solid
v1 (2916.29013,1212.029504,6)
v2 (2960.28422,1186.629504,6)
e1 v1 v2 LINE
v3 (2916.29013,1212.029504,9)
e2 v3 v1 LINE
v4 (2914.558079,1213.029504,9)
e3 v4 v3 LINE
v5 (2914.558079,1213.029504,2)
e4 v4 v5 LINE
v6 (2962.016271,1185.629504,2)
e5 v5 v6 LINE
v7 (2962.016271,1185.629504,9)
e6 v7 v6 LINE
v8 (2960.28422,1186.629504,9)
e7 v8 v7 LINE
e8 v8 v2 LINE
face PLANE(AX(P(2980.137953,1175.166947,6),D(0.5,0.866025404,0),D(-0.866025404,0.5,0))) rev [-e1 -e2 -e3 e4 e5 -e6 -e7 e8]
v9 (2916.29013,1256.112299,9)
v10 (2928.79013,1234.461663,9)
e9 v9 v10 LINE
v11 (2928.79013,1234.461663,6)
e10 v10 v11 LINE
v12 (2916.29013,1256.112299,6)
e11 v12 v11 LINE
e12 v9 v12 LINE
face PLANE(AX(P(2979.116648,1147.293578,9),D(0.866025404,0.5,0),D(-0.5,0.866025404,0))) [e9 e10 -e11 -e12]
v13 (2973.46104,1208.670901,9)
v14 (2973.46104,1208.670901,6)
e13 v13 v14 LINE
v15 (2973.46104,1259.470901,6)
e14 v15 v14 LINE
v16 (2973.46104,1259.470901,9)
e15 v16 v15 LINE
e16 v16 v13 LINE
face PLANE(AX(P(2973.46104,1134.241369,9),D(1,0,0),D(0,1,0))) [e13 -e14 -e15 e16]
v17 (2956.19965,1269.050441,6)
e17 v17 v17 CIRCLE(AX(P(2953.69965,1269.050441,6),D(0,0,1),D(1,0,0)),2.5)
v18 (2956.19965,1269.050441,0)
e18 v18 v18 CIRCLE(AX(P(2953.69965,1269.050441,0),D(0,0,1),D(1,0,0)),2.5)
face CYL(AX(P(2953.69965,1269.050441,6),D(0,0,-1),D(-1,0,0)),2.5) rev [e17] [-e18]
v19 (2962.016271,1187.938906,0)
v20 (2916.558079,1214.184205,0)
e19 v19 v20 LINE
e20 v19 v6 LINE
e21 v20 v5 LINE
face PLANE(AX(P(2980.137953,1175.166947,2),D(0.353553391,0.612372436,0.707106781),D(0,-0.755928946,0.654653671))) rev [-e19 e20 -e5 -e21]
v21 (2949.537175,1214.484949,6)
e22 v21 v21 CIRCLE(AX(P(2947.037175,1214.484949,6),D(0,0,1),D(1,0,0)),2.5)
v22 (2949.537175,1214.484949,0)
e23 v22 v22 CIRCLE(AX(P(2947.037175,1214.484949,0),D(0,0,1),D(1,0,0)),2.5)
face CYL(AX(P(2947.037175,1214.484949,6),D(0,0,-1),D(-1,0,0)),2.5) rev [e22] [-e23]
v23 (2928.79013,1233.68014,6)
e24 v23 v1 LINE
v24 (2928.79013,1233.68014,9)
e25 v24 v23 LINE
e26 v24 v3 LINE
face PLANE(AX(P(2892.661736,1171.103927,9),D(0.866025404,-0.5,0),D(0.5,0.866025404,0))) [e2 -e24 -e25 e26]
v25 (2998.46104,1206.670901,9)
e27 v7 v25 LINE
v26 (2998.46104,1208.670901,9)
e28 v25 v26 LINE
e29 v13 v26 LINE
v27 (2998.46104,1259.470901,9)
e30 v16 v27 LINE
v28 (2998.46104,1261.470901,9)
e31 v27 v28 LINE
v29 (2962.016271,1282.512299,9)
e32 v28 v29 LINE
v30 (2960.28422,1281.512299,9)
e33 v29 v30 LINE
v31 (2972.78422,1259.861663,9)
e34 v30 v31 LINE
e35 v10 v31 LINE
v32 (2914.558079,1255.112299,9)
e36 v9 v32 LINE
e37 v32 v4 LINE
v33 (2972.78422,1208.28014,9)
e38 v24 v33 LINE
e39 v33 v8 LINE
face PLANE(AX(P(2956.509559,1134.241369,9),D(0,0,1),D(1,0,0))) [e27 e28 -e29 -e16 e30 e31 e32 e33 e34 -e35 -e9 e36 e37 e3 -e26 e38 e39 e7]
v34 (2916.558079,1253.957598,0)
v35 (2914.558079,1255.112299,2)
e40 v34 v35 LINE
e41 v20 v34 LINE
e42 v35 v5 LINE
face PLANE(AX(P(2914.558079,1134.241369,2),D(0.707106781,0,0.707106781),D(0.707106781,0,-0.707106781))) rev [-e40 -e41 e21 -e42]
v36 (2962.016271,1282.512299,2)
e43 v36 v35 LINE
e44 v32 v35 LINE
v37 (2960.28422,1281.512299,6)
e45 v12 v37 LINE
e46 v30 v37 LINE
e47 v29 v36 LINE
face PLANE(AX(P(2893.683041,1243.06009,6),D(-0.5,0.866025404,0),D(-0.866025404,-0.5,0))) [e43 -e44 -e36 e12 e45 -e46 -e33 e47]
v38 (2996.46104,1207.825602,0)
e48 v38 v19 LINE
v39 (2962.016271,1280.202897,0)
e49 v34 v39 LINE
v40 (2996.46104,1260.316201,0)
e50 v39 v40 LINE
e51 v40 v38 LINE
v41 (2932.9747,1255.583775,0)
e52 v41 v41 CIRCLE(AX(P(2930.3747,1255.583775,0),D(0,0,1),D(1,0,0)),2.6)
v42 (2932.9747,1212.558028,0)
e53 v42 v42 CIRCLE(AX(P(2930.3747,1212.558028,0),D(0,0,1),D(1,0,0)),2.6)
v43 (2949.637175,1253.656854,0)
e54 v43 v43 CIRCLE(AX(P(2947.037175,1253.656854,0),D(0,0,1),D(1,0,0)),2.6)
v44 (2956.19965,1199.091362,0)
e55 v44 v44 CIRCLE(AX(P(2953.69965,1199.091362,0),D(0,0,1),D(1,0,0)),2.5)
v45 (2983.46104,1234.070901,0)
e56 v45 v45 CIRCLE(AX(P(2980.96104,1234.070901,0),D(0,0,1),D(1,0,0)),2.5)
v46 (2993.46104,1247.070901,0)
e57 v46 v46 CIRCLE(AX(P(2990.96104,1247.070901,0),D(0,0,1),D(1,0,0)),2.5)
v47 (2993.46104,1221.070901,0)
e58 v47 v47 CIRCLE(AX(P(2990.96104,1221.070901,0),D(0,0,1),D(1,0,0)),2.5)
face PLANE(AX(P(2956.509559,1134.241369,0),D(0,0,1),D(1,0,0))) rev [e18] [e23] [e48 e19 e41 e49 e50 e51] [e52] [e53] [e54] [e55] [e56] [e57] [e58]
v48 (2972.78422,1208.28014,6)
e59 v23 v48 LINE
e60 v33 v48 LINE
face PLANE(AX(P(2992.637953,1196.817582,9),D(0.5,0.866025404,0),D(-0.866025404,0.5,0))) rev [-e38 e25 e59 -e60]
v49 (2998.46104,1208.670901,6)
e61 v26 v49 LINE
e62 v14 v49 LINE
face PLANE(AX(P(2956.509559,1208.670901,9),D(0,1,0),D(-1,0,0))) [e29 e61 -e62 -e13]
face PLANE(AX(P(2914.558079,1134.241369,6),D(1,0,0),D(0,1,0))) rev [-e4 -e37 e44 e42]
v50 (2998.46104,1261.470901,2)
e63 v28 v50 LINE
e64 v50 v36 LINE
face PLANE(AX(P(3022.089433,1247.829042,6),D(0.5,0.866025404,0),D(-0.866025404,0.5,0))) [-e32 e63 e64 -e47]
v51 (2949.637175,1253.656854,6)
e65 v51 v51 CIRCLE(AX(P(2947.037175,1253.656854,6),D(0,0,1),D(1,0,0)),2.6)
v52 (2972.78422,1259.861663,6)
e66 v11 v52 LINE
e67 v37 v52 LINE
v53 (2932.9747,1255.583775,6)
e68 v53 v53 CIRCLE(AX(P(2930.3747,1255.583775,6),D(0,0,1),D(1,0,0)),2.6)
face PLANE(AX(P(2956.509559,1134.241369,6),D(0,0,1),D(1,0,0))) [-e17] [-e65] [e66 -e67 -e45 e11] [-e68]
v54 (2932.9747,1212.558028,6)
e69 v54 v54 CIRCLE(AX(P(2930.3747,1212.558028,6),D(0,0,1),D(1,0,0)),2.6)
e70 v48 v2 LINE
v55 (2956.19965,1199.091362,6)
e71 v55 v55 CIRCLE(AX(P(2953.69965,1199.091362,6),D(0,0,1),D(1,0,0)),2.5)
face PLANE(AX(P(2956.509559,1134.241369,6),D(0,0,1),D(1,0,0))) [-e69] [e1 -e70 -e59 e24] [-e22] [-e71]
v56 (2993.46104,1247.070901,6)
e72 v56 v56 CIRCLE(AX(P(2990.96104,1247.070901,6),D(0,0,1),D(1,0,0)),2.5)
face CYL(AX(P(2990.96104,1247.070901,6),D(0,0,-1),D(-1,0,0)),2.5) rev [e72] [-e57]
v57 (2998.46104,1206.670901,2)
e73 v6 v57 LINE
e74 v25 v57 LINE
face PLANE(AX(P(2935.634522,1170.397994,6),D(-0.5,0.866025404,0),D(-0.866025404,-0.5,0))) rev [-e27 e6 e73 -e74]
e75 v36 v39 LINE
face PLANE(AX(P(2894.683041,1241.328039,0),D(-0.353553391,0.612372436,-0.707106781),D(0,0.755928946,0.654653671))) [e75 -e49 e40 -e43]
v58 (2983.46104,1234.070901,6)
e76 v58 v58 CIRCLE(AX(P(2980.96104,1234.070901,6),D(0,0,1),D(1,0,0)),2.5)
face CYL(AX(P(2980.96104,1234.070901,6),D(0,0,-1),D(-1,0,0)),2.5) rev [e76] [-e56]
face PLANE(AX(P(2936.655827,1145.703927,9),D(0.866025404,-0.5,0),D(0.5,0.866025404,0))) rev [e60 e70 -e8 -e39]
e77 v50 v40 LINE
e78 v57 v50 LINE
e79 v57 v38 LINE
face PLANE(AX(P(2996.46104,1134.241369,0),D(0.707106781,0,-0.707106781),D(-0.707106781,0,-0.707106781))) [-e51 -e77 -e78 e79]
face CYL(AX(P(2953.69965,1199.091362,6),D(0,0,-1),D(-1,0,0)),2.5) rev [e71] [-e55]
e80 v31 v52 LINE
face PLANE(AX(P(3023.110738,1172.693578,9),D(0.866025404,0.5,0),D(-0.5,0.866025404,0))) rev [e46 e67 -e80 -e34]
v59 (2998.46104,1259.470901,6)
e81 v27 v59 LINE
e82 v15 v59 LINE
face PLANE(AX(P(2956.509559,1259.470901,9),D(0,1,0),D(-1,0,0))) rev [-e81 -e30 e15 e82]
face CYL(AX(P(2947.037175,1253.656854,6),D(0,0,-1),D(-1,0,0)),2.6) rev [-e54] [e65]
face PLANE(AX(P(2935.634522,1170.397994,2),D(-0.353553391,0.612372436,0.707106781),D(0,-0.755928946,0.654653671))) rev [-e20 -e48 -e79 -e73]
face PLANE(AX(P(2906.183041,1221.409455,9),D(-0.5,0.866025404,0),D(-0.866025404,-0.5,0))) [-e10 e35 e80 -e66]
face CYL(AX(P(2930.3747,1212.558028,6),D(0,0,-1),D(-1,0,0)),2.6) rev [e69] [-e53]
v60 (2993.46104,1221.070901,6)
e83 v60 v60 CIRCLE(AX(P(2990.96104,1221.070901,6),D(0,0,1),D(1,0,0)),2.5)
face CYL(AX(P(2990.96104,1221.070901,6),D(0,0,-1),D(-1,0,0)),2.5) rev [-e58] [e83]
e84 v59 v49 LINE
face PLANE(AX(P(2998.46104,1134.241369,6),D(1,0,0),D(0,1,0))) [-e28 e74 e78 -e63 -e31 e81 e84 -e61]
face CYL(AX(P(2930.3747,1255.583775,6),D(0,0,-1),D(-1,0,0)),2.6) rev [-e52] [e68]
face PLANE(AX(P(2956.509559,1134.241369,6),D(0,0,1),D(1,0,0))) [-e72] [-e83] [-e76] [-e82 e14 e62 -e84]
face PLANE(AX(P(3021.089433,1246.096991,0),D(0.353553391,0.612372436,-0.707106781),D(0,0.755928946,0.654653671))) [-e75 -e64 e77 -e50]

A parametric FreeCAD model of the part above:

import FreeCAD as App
import Part
import Sketcher
Q = App.Units.Quantity


def edges_at(feature, points):
    """Names of the edges that pass closest to the given points."""
    edges = feature.Shape.Edges
    near = lambda p: min(range(len(edges)), key=lambda i: edges[i].distToShape(Part.Vertex(*p))[0])
    return sorted({f"Edge{near(p) + 1}" for p in points})

doc = App.newDocument("Part")
body = doc.addObject("PartDesign::Body", "Body")

# Sketch on XY plane
sketch1 = doc.addObject("Sketcher::SketchObject", "Sketch")
body.addObject(sketch1)
sketch1.AttachmentSupport = (doc.XY_Plane, [""])
sketch1.MapMode = "FlatFace"
sketch1.addGeometry([
    Part.LineSegment(App.Vector(2998.5, 1206.7, 0), App.Vector(2998.5, 1261.5, 0)),  # 0
    Part.LineSegment(App.Vector(2998.5, 1261.5, 0), App.Vector(2962, 1282.5, 0)),  # 1
    Part.LineSegment(App.Vector(2962, 1282.5, 0), App.Vector(2914.6, 1255.1, 0)),  # 2
    Part.LineSegment(App.Vector(2914.6, 1255.1, 0), App.Vector(2914.6, 1213, 0)),  # 3
    Part.LineSegment(App.Vector(2914.6, 1213, 0), App.Vector(2962, 1185.6, 0)),  # 4
    Part.LineSegment(App.Vector(2962, 1185.6, 0), App.Vector(2998.5, 1206.7, 0)),  # 5
    Part.Circle(App.Vector(2991, 1221.1, 0), App.Vector(0, 0, 1), 2.5),  # 6
    Part.Circle(App.Vector(2953.7, 1199.1, 0), App.Vector(0, 0, 1), 2.5),  # 7
    Part.Circle(App.Vector(2947, 1214.5, 0), App.Vector(0, 0, 1), 2.5),  # 8
    Part.Circle(App.Vector(2930.4, 1212.6, 0), App.Vector(0, 0, 1), 2.6),  # 9
    Part.Circle(App.Vector(2981, 1234.1, 0), App.Vector(0, 0, 1), 2.5),  # 10
    Part.Circle(App.Vector(2991, 1247.1, 0), App.Vector(0, 0, 1), 2.5),  # 11
    Part.Circle(App.Vector(2947, 1253.7, 0), App.Vector(0, 0, 1), 2.6),  # 12
    Part.Circle(App.Vector(2953.7, 1269.1, 0), App.Vector(0, 0, 1), 2.5),  # 13
    Part.Circle(App.Vector(2930.4, 1255.6, 0), App.Vector(0, 0, 1), 2.6),  # 14
], False)
sketch1.addConstraint([
    Sketcher.Constraint("Coincident", 0, 2, 1, 1),
    Sketcher.Constraint("Coincident", 1, 2, 2, 1),
    Sketcher.Constraint("Coincident", 2, 2, 3, 1),
    Sketcher.Constraint("Coincident", 3, 2, 4, 1),
    Sketcher.Constraint("Coincident", 4, 2, 5, 1),
    Sketcher.Constraint("Coincident", 5, 2, 0, 1),
    Sketcher.Constraint("Vertical", 0),
    Sketcher.Constraint("Vertical", 3),
    Sketcher.Constraint("Equal", 6, 7),
    Sketcher.Constraint("Equal", 7, 8),
    Sketcher.Constraint("Equal", 8, 10),
    Sketcher.Constraint("Equal", 10, 11),
    Sketcher.Constraint("Equal", 9, 12),
    Sketcher.Constraint("Equal", 11, 13),
    Sketcher.Constraint("Equal", 12, 14),
    Sketcher.Constraint("Parallel", 1, 4),
    Sketcher.Constraint("Parallel", 2, 5),
    Sketcher.Constraint("Vertical", 6, 3, 11, 3),
    Sketcher.Constraint("Vertical", 8, 3, 12, 3),
    Sketcher.Constraint("Vertical", 7, 3, 13, 3),
    Sketcher.Constraint("Vertical", 9, 3, 14, 3),
    Sketcher.Constraint("Vertical", 1, 2, 4, 2),
    Sketcher.Constraint("Equal", 2, 4),
    Sketcher.Constraint("Diameter", 6, 5.0),
    Sketcher.Constraint("Diameter", 9, 5.2),
    Sketcher.Constraint("Angle", 1, Q("150 deg")),
    Sketcher.Constraint("DistanceY", 0, 1, 0, 2, 54.8),
    Sketcher.Constraint("DistanceX", 10, 3, 6, 3, 10.0),
    Sketcher.Constraint("DistanceY", 6, 3, 10, 3, 13.0),
    Sketcher.Constraint("DistanceY", 10, 3, 11, 3, 13.0),
    Sketcher.Constraint("Distance", 2, 54.8),
    Sketcher.Constraint("DistanceX", 11, 3, 0, 2, 7.5),
    Sketcher.Constraint("DistanceY", 11, 3, 0, 2, 14.4),
    Sketcher.Constraint("DistanceY", -1, 1, 6, 3, 1221.070901),
    Sketcher.Constraint("DistanceX", -1, 1, 9, 3, 2930.3747),
    Sketcher.Constraint("DistanceY", -1, 1, 1, 2, 1282.512299),
    Sketcher.Constraint("DistanceX", -1, 1, 6, 3, 2990.96104),
    Sketcher.Constraint("DistanceX", -1, 1, 7, 3, 2953.69965),
    Sketcher.Constraint("DistanceY", -1, 1, 7, 3, 1199.091362),
    Sketcher.Constraint("DistanceY", -1, 1, 8, 3, 1214.484949),
    Sketcher.Constraint("DistanceY", -1, 1, 9, 3, 1212.558028),
    Sketcher.Constraint("DistanceY", -1, 1, 13, 3, 1269.050441),
    Sketcher.Constraint("DistanceY", 12, 3, 14, 3, 1.926921),
    Sketcher.Constraint("DistanceY", 3, 2, 14, 3, 42.55427),
    Sketcher.Constraint("DistanceX", -1, 1, 8, 3, 2947.037175),
])
pad1 = doc.addObject("PartDesign::Pad", "Pad")
body.addObject(pad1)
pad1.Profile = sketch1
pad1.Length = 6

# Sketch on XY plane
sketch2 = doc.addObject("Sketcher::SketchObject", "Sketch001")
body.addObject(sketch2)
sketch2.AttachmentSupport = (doc.XY_Plane, [""])
sketch2.MapMode = "FlatFace"
sketch2.AttachmentOffset = App.Placement(App.Vector(0, 0, 6), App.Rotation())
sketch2.addGeometry([
    Part.LineSegment(App.Vector(2916.3, 1212, 0), App.Vector(2928.8, 1233.7, 0)),  # 0
    Part.LineSegment(App.Vector(2928.8, 1233.7, 0), App.Vector(2972.8, 1208.3, 0)),  # 1
    Part.LineSegment(App.Vector(2972.8, 1208.3, 0), App.Vector(2960.3, 1186.6, 0)),  # 2
    Part.LineSegment(App.Vector(2960.3, 1186.6, 0), App.Vector(2962, 1185.6, 0)),  # 3
    Part.LineSegment(App.Vector(2962, 1185.6, 0), App.Vector(2998.5, 1206.7, 0)),  # 4
    Part.LineSegment(App.Vector(2998.5, 1206.7, 0), App.Vector(2998.5, 1208.7, 0)),  # 5
    Part.LineSegment(App.Vector(2998.5, 1208.7, 0), App.Vector(2973.5, 1208.7, 0)),  # 6
    Part.LineSegment(App.Vector(2973.5, 1208.7, 0), App.Vector(2973.5, 1259.5, 0)),  # 7
    Part.LineSegment(App.Vector(2973.5, 1259.5, 0), App.Vector(2998.5, 1259.5, 0)),  # 8
    Part.LineSegment(App.Vector(2998.5, 1259.5, 0), App.Vector(2998.5, 1261.5, 0)),  # 9
    Part.LineSegment(App.Vector(2998.5, 1261.5, 0), App.Vector(2962, 1282.5, 0)),  # 10
    Part.LineSegment(App.Vector(2962, 1282.5, 0), App.Vector(2960.3, 1281.5, 0)),  # 11
    Part.LineSegment(App.Vector(2960.3, 1281.5, 0), App.Vector(2972.8, 1259.9, 0)),  # 12
    Part.LineSegment(App.Vector(2972.8, 1259.9, 0), App.Vector(2928.8, 1234.5, 0)),  # 13
    Part.LineSegment(App.Vector(2928.8, 1234.5, 0), App.Vector(2916.3, 1256.1, 0)),  # 14
    Part.LineSegment(App.Vector(2916.3, 1256.1, 0), App.Vector(2914.6, 1255.1, 0)),  # 15
    Part.LineSegment(App.Vector(2914.6, 1255.1, 0), App.Vector(2914.6, 1213, 0)),  # 16
    Part.LineSegment(App.Vector(2914.6, 1213, 0), App.Vector(2916.3, 1212, 0)),  # 17
], False)
sketch2.addConstraint([
    Sketcher.Constraint("Coincident", 0, 2, 1, 1),
    Sketcher.Constraint("Coincident", 1, 2, 2, 1),
    Sketcher.Constraint("Coincident", 2, 2, 3, 1),
    Sketcher.Constraint("Coincident", 3, 2, 4, 1),
    Sketcher.Constraint("Coincident", 4, 2, 5, 1),
    Sketcher.Constraint("Coincident", 5, 2, 6, 1),
    Sketcher.Constraint("Coincident", 6, 2, 7, 1),
    Sketcher.Constraint("Coincident", 7, 2, 8, 1),
    Sketcher.Constraint("Coincident", 8, 2, 9, 1),
    Sketcher.Constraint("Coincident", 9, 2, 10, 1),
    Sketcher.Constraint("Coincident", 10, 2, 11, 1),
    Sketcher.Constraint("Coincident", 11, 2, 12, 1),
    Sketcher.Constraint("Coincident", 12, 2, 13, 1),
    Sketcher.Constraint("Coincident", 13, 2, 14, 1),
    Sketcher.Constraint("Coincident", 14, 2, 15, 1),
    Sketcher.Constraint("Coincident", 15, 2, 16, 1),
    Sketcher.Constraint("Coincident", 16, 2, 17, 1),
    Sketcher.Constraint("Coincident", 17, 2, 0, 1),
    Sketcher.Constraint("Vertical", 5),
    Sketcher.Constraint("Horizontal", 6),
    Sketcher.Constraint("Vertical", 7),
    Sketcher.Constraint("Horizontal", 8),
    Sketcher.Constraint("Vertical", 9),
    Sketcher.Constraint("Vertical", 16),
    Sketcher.Constraint("Perpendicular", 0, 1),
    Sketcher.Constraint("Perpendicular", 1, 2),
    Sketcher.Constraint("Perpendicular", 2, 3),
    Sketcher.Constraint("Parallel", 3, 10),
    Sketcher.Constraint("Parallel", 4, 11),
    Sketcher.Constraint("Perpendicular", 11, 12),
    Sketcher.Constraint("Perpendicular", 12, 13),
    Sketcher.Constraint("Perpendicular", 13, 14),
    Sketcher.Constraint("Perpendicular", 14, 15),
    Sketcher.Constraint("Parallel", 10, 17),
    Sketcher.Constraint("Vertical", 5, 2, 8, 2),
    Sketcher.Constraint("Vertical", 3, 2, 10, 2),
    Sketcher.Constraint("Vertical", 2, 2, 11, 2),
    Sketcher.Constraint("Vertical", 1, 2, 12, 2),
    Sketcher.Constraint("Vertical", 0, 2, 13, 2),
    Sketcher.Constraint("Vertical", 14, 2, 17, 2),
    Sketcher.Constraint("Equal", 5, 9),
    Sketcher.Constraint("Equal", 0, 2),
    Sketcher.Constraint("Equal", 4, 10),
    Sketcher.Constraint("Equal", 11, 15),
    Sketcher.Constraint("DistanceX", 6, 2, 6, 1, 25.0),
    Sketcher.Constraint("DistanceY", 5, 1, 5, 2, 2.0),
    Sketcher.Constraint("Angle", 0, Q("60 deg")),
    Sketcher.Constraint("Distance", 0, 25.0),
    Sketcher.Constraint("Distance", 3, 2.0),
    Sketcher.Constraint("DistanceY", 7, 1, 7, 2, 50.8),
    Sketcher.Constraint("Distance", 1, 50.8),
    Sketcher.Constraint("DistanceY", -1, 1, 4, 2, 1206.670901),
    Sketcher.Constraint("DistanceY", -1, 1, 10, 2, 1282.512299),
    Sketcher.Constraint("DistanceX", -1, 1, 0, 2, 2928.79013),
])
pad2 = doc.addObject("PartDesign::Pad", "Pad001")
body.addObject(pad2)
pad2.Profile = sketch2
pad2.Length = 3
doc.recompute()

chamfer = doc.addObject("PartDesign::Chamfer", "Chamfer")
body.addObject(chamfer)
chamfer.Base = (pad2, edges_at(pad2, [
    (2980.239, 1196.15, 0),
    (2938.287, 1199.33, 0),
    (2914.558, 1234.071, 0),
    (2938.287, 1268.812, 0),
    (2980.239, 1271.992, 0),
    (2998.461, 1234.071, 0),
]))
chamfer.Size = 2

doc.recompute()
